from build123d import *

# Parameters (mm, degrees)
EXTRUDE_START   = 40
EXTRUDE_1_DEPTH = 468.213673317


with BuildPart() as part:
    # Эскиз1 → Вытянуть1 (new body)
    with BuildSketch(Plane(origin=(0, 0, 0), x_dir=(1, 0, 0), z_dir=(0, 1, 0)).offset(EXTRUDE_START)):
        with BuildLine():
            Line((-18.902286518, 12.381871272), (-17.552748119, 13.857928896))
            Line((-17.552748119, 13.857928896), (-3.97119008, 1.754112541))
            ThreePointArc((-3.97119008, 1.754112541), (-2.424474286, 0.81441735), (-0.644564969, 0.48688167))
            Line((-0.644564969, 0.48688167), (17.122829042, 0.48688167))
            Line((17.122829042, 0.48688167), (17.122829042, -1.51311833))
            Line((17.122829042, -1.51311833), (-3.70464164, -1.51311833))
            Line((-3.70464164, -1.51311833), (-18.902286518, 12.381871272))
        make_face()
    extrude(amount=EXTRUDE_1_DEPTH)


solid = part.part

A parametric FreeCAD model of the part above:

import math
import FreeCAD as App
import Part
import Sketcher

V = App.Vector

doc = App.newDocument("Part")
body = doc.addObject("PartDesign::Body", "Body")

sketch1 = body.newObject("Sketcher::SketchObject", "Sketch")
sketch1.AttachmentSupport = (doc.getObject("XZ_Plane"), [""])
sketch1.MapMode = "FlatFace"
sketch1.AttachmentOffset = App.Placement(V(0, 0, -40), App.Rotation())
sketch1.addGeometry([
    Part.LineSegment(V(-17.6, -13.9, 0), V(-18.9, -12.4, 0)),
    Part.LineSegment(V(-18.9, -12.4, 0), V(-3.7, 1.5, 0)),
    Part.LineSegment(V(-3.7, 1.5, 0), V(17.1, 1.5, 0)),
    Part.LineSegment(V(17.1, 1.5, 0), V(17.1, -0.5, 0)),
    Part.LineSegment(V(17.1, -0.5, 0), V(-0.6, -0.5, 0)),
    Part.ArcOfCircle(Part.Circle(V(-0.6, -5.5, 0), V(0, 0, 1), 5), math.radians(90), math.radians(132)),
    Part.LineSegment(V(-4, -1.8, 0), V(-17.6, -13.9, 0)),
], False)
sketch1.addConstraint([
    Sketcher.Constraint("Coincident", 0, 2, 1, 1),
    Sketcher.Constraint("Coincident", 1, 2, 2, 1),
    Sketcher.Constraint("Coincident", 2, 2, 3, 1),
    Sketcher.Constraint("Coincident", 3, 2, 4, 1),
    Sketcher.Constraint("Tangent", 4, 2, 5, 1),
    Sketcher.Constraint("Tangent", 5, 2, 6, 1),
    Sketcher.Constraint("Coincident", 6, 2, 0, 1),
    Sketcher.Constraint("Horizontal", 2),
    Sketcher.Constraint("Vertical", 3),
    Sketcher.Constraint("Horizontal", 4),
    Sketcher.Constraint("Perpendicular", 0, 1),
    Sketcher.Constraint("Radius", 5, 5.0),
    Sketcher.Constraint("DistanceY", 3, 2, 3, 1, 2.0),
    Sketcher.Constraint("Distance", 0, 2.0),
    Sketcher.Constraint("DistanceX", 2, 1, 2, 2, 20.827471),
    Sketcher.Constraint("Distance", 1, 20.592211),
    Sketcher.Constraint("DistanceX", 4, 2, 4, 1, 17.767394),
    Sketcher.Constraint("DistanceY", 5, 3, -1, 1, 5.486882),
    Sketcher.Constraint("DistanceY", 0, 2, -1, 1, 12.381871),
    Sketcher.Constraint("DistanceX", 1, 2, -1, 1, 3.704642),
])
pad1 = body.newObject("PartDesign::Pad", "Pad")
pad1.Profile = sketch1
pad1.Length = 468.213673
pad1.Reversed = True

doc.recompute()
